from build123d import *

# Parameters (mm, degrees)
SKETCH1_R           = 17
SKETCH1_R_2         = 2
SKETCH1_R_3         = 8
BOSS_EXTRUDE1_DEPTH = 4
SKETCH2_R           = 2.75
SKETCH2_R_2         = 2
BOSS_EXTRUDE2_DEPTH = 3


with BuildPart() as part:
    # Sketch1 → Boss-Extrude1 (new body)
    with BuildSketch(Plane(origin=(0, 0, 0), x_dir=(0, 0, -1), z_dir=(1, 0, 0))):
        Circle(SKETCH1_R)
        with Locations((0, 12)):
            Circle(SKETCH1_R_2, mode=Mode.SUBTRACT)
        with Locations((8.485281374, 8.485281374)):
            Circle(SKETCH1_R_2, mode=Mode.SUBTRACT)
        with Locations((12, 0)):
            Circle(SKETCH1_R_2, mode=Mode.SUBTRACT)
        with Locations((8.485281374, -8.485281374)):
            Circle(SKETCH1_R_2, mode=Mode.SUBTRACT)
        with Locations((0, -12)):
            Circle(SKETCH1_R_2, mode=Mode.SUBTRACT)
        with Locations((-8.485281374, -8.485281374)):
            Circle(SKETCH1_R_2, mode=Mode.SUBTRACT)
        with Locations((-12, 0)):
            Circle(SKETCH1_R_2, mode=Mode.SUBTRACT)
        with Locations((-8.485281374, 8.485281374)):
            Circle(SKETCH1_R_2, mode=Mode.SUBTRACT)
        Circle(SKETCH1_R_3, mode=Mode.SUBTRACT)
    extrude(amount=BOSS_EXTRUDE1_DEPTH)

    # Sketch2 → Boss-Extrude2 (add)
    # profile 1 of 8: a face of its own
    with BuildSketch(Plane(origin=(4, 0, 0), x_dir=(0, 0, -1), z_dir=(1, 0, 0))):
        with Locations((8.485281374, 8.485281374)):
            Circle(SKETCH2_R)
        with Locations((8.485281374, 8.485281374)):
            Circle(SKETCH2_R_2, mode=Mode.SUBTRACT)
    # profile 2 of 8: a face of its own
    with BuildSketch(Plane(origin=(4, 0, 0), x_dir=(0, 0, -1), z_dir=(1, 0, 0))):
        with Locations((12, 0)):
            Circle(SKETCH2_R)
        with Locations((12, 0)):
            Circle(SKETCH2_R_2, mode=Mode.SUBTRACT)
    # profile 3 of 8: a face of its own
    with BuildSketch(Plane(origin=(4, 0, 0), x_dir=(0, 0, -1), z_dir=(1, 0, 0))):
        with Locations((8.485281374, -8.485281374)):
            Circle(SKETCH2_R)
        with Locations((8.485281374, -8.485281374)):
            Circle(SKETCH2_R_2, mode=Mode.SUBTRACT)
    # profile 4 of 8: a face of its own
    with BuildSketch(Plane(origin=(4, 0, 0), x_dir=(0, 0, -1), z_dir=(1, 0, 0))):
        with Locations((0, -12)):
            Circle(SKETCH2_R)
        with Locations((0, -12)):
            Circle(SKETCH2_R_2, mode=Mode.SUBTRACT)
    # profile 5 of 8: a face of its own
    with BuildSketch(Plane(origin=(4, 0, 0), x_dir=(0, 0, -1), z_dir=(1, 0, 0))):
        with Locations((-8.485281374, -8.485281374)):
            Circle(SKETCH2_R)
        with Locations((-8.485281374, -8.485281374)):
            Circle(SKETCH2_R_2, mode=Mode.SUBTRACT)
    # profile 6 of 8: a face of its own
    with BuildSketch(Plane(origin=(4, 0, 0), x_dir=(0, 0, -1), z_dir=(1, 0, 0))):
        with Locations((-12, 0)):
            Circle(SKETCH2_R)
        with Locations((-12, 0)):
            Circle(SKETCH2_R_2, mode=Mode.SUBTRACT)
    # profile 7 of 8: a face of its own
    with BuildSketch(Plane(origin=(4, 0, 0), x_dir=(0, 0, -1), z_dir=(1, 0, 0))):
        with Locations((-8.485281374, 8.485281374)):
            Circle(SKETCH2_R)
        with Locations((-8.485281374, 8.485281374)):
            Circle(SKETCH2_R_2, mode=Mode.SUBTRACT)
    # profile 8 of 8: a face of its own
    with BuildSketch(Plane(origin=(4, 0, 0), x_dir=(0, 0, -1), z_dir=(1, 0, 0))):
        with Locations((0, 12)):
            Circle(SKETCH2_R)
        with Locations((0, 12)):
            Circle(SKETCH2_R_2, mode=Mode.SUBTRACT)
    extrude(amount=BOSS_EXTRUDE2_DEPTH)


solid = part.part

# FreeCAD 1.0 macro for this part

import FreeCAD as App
import Part
import Sketcher
from FreeCAD import Vector

doc = App.newDocument("Part")
body = doc.addObject("PartDesign::Body", "Body")

sketch1 = body.newObject("Sketcher::SketchObject", "Sketch")
sketch1.AttachmentSupport = (doc.getObject("YZ_Plane"), [""])
sketch1.MapMode = "FlatFace"
sketch1.addGeometry([
    Part.Circle(Vector(0, 0, 0), Vector(0, 0, 1), 17),
    Part.Circle(Vector(-8.5, 8.5, 0), Vector(0, 0, 1), 2),
    Part.Circle(Vector(-12, 0, 0), Vector(0, 0, 1), 2),
    Part.Circle(Vector(-8.5, -8.5, 0), Vector(0, 0, 1), 2),
    Part.Circle(Vector(0, 12, 0), Vector(0, 0, 1), 2),
    Part.Circle(Vector(8.5, 8.5, 0), Vector(0, 0, 1), 2),
    Part.Circle(Vector(0, 0, 0), Vector(0, 0, 1), 8),
    Part.Circle(Vector(0, -12, 0), Vector(0, 0, 1), 2),
    Part.Circle(Vector(12, 0, 0), Vector(0, 0, 1), 2),
    Part.Circle(Vector(8.5, -8.5, 0), Vector(0, 0, 1), 2),
], False)
sketch1.addConstraint([
    Sketcher.Constraint("Coincident", 0, 3, -1, 1),
    Sketcher.Constraint("Coincident", 6, 3, -1, 1),
    Sketcher.Constraint("Equal", 1, 2),
    Sketcher.Constraint("Equal", 2, 3),
    Sketcher.Constraint("Equal", 3, 4),
    Sketcher.Constraint("Equal", 4, 5),
    Sketcher.Constraint("Equal", 5, 7),
    Sketcher.Constraint("Equal", 7, 8),
    Sketcher.Constraint("Equal", 8, 9),
    Sketcher.Constraint("Symmetric", 3, 3, 5, 3, -1, 1),
    Sketcher.Constraint("Symmetric", 4, 3, 7, 3, -1, 1),
    Sketcher.Constraint("Symmetric", 2, 3, 8, 3, -1, 1),
    Sketcher.Constraint("Symmetric", 1, 3, 9, 3, -1, 1),
    Sketcher.Constraint("Symmetric", 1, 3, 5, 3, -2),
    Sketcher.Constraint("PointOnObject", 2, 3, -1),
    Sketcher.Constraint("PointOnObject", 4, 3, -2),
    Sketcher.Constraint("Diameter", 0, 34.0),
    Sketcher.Constraint("Diameter", 1, 4.0),
    Sketcher.Constraint("Diameter", 6, 16.0),
    Sketcher.Constraint("DistanceX", 2, 3, -1, 1, 12.0),
    Sketcher.Constraint("DistanceY", -1, 1, 4, 3, 12.0),
    Sketcher.Constraint("DistanceX", 1, 3, -1, 1, 8.485281),
    Sketcher.Constraint("DistanceY", -1, 1, 1, 3, 8.485281),
])
pad1 = body.newObject("PartDesign::Pad", "Pad")
pad1.Profile = sketch1
pad1.Length = 4

sketch2 = body.newObject("Sketcher::SketchObject", "Sketch001")
sketch2.AttachmentSupport = (doc.getObject("YZ_Plane"), [""])
sketch2.MapMode = "FlatFace"
sketch2.AttachmentOffset = App.Placement(Vector(0, 0, 4), App.Rotation())
sketch2.addGeometry([
    Part.Circle(Vector(8.5, -8.5, 0), Vector(0, 0, 1), 2.8),
    Part.Circle(Vector(8.5, -8.5, 0), Vector(0, 0, 1), 2),
    Part.Circle(Vector(0, -12, 0), Vector(0, 0, 1), 2.8),
    Part.Circle(Vector(0, -12, 0), Vector(0, 0, 1), 2),
    Part.Circle(Vector(-8.5, -8.5, 0), Vector(0, 0, 1), 2.8),
    Part.Circle(Vector(-8.5, -8.5, 0), Vector(0, 0, 1), 2),
    Part.Circle(Vector(-12, 0, 0), Vector(0, 0, 1), 2.8),
    Part.Circle(Vector(-12, 0, 0), Vector(0, 0, 1), 2),
    Part.Circle(Vector(-8.5, 8.5, 0), Vector(0, 0, 1), 2.8),
    Part.Circle(Vector(-8.5, 8.5, 0), Vector(0, 0, 1), 2),
    Part.Circle(Vector(0, 12, 0), Vector(0, 0, 1), 2.8),
    Part.Circle(Vector(0, 12, 0), Vector(0, 0, 1), 2),
    Part.Circle(Vector(8.5, 8.5, 0), Vector(0, 0, 1), 2.8),
    Part.Circle(Vector(8.5, 8.5, 0), Vector(0, 0, 1), 2),
    Part.Circle(Vector(12, 0, 0), Vector(0, 0, 1), 2.8),
    Part.Circle(Vector(12, 0, 0), Vector(0, 0, 1), 2),
], False)
sketch2.addConstraint([
    Sketcher.Constraint("Coincident", 1, 3, 0, 3),
    Sketcher.Constraint("Coincident", 3, 3, 2, 3),
    Sketcher.Constraint("Coincident", 5, 3, 4, 3),
    Sketcher.Constraint("Coincident", 7, 3, 6, 3),
    Sketcher.Constraint("Coincident", 9, 3, 8, 3),
    Sketcher.Constraint("Coincident", 11, 3, 10, 3),
    Sketcher.Constraint("Coincident", 13, 3, 12, 3),
    Sketcher.Constraint("Coincident", 15, 3, 14, 3),
    Sketcher.Constraint("Equal", 0, 2),
    Sketcher.Constraint("Equal", 1, 3),
    Sketcher.Constraint("Equal", 2, 4),
    Sketcher.Constraint("Equal", 3, 5),
    Sketcher.Constraint("Equal", 4, 6),
    Sketcher.Constraint("Equal", 5, 7),
    Sketcher.Constraint("Equal", 6, 8),
    Sketcher.Constraint("Equal", 7, 9),
    Sketcher.Constraint("Equal", 8, 10),
    Sketcher.Constraint("Equal", 9, 11),
    Sketcher.Constraint("Equal", 10, 12),
    Sketcher.Constraint("Equal", 11, 13),
    Sketcher.Constraint("Equal", 12, 14),
    Sketcher.Constraint("Equal", 13, 15),
    Sketcher.Constraint("Symmetric", 0, 3, 8, 3, -1, 1),
    Sketcher.Constraint("Symmetric", 2, 3, 10, 3, -1, 1),
    Sketcher.Constraint("Symmetric", 4, 3, 12, 3, -1, 1),
    Sketcher.Constraint("Symmetric", 6, 3, 14, 3, -1, 1),
    Sketcher.Constraint("Symmetric", 0, 3, 4, 3, -2),
    Sketcher.Constraint("PointOnObject", 2, 3, -2),
    Sketcher.Constraint("PointOnObject", 6, 3, -1),
    Sketcher.Constraint("Diameter", 1, 4.0),
    Sketcher.Constraint("Diameter", 0, 5.5),
    Sketcher.Constraint("DistanceY", 2, 3, -1, 1, 12.0),
    Sketcher.Constraint("DistanceX", 6, 3, -1, 1, 12.0),
    Sketcher.Constraint("DistanceX", -1, 1, 0, 3, 8.485281),
    Sketcher.Constraint("DistanceY", 0, 3, -1, 1, 8.485281),
])
pad2 = body.newObject("PartDesign::Pad", "Pad001")
pad2.Profile = sketch2
pad2.Length = 3

doc.recompute()
